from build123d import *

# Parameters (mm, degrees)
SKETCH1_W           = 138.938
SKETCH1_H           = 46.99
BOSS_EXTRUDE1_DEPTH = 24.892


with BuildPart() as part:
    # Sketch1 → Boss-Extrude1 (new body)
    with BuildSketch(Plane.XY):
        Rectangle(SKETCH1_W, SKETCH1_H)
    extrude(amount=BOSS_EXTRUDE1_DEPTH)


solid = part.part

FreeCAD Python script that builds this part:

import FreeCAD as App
import Part
import Sketcher
Q = App.Units.Quantity

doc = App.newDocument("Part")
params = doc.addObject("Spreadsheet::Sheet", "Params")
for row, (alias, value) in enumerate([
    ("sketch1_width", "5.47 in"),
    ("sketch1_height", "1.85 in"),
    ("pad1_length", "0.98 in"),
], start=1):
    params.set(f"A{row}", alias)
    params.set(f"B{row}", "=" + value)
    params.setAlias(f"B{row}", alias)

body = doc.addObject("PartDesign::Body", "Body")

# Sketch on XY plane
sketch1 = body.newObject("Sketcher::SketchObject", "Sketch")
sketch1.AttachmentSupport = (doc.getObject("XY_Plane"), [""])
sketch1.MapMode = "FlatFace"
sketch1.addGeometry([
    Part.LineSegment(App.Vector(-69, 23, 0), App.Vector(-69, -23, 0)),
    Part.LineSegment(App.Vector(-69, -23, 0), App.Vector(69, -23, 0)),
    Part.LineSegment(App.Vector(69, -23, 0), App.Vector(69, 23, 0)),
    Part.LineSegment(App.Vector(69, 23, 0), App.Vector(-69, 23, 0)),
], False)
sketch1.addConstraint([
    Sketcher.Constraint("Coincident", 0, 2, 1, 1),
    Sketcher.Constraint("Coincident", 1, 2, 2, 1),
    Sketcher.Constraint("Coincident", 2, 2, 3, 1),
    Sketcher.Constraint("Coincident", 3, 2, 0, 1),
    Sketcher.Constraint("Vertical", 0),
    Sketcher.Constraint("Horizontal", 1),
    Sketcher.Constraint("Vertical", 2),
    Sketcher.Constraint("Horizontal", 3),
    Sketcher.Constraint("Symmetric", 0, 2, 2, 2, -1, 1),
    Sketcher.Constraint("DistanceX", 1, 1, 1, 2, Q("5.47 in")),
    Sketcher.Constraint("DistanceY", 0, 2, 0, 1, Q("1.85 in")),
])
sketch1.setExpression("Constraints[9]", "Params.sketch1_width")
sketch1.setExpression("Constraints[10]", "Params.sketch1_height")
pad1 = body.newObject("PartDesign::Pad", "Pad")
pad1.Profile = sketch1
pad1.setExpression("Length", "Params.pad1_length")

doc.recompute()
